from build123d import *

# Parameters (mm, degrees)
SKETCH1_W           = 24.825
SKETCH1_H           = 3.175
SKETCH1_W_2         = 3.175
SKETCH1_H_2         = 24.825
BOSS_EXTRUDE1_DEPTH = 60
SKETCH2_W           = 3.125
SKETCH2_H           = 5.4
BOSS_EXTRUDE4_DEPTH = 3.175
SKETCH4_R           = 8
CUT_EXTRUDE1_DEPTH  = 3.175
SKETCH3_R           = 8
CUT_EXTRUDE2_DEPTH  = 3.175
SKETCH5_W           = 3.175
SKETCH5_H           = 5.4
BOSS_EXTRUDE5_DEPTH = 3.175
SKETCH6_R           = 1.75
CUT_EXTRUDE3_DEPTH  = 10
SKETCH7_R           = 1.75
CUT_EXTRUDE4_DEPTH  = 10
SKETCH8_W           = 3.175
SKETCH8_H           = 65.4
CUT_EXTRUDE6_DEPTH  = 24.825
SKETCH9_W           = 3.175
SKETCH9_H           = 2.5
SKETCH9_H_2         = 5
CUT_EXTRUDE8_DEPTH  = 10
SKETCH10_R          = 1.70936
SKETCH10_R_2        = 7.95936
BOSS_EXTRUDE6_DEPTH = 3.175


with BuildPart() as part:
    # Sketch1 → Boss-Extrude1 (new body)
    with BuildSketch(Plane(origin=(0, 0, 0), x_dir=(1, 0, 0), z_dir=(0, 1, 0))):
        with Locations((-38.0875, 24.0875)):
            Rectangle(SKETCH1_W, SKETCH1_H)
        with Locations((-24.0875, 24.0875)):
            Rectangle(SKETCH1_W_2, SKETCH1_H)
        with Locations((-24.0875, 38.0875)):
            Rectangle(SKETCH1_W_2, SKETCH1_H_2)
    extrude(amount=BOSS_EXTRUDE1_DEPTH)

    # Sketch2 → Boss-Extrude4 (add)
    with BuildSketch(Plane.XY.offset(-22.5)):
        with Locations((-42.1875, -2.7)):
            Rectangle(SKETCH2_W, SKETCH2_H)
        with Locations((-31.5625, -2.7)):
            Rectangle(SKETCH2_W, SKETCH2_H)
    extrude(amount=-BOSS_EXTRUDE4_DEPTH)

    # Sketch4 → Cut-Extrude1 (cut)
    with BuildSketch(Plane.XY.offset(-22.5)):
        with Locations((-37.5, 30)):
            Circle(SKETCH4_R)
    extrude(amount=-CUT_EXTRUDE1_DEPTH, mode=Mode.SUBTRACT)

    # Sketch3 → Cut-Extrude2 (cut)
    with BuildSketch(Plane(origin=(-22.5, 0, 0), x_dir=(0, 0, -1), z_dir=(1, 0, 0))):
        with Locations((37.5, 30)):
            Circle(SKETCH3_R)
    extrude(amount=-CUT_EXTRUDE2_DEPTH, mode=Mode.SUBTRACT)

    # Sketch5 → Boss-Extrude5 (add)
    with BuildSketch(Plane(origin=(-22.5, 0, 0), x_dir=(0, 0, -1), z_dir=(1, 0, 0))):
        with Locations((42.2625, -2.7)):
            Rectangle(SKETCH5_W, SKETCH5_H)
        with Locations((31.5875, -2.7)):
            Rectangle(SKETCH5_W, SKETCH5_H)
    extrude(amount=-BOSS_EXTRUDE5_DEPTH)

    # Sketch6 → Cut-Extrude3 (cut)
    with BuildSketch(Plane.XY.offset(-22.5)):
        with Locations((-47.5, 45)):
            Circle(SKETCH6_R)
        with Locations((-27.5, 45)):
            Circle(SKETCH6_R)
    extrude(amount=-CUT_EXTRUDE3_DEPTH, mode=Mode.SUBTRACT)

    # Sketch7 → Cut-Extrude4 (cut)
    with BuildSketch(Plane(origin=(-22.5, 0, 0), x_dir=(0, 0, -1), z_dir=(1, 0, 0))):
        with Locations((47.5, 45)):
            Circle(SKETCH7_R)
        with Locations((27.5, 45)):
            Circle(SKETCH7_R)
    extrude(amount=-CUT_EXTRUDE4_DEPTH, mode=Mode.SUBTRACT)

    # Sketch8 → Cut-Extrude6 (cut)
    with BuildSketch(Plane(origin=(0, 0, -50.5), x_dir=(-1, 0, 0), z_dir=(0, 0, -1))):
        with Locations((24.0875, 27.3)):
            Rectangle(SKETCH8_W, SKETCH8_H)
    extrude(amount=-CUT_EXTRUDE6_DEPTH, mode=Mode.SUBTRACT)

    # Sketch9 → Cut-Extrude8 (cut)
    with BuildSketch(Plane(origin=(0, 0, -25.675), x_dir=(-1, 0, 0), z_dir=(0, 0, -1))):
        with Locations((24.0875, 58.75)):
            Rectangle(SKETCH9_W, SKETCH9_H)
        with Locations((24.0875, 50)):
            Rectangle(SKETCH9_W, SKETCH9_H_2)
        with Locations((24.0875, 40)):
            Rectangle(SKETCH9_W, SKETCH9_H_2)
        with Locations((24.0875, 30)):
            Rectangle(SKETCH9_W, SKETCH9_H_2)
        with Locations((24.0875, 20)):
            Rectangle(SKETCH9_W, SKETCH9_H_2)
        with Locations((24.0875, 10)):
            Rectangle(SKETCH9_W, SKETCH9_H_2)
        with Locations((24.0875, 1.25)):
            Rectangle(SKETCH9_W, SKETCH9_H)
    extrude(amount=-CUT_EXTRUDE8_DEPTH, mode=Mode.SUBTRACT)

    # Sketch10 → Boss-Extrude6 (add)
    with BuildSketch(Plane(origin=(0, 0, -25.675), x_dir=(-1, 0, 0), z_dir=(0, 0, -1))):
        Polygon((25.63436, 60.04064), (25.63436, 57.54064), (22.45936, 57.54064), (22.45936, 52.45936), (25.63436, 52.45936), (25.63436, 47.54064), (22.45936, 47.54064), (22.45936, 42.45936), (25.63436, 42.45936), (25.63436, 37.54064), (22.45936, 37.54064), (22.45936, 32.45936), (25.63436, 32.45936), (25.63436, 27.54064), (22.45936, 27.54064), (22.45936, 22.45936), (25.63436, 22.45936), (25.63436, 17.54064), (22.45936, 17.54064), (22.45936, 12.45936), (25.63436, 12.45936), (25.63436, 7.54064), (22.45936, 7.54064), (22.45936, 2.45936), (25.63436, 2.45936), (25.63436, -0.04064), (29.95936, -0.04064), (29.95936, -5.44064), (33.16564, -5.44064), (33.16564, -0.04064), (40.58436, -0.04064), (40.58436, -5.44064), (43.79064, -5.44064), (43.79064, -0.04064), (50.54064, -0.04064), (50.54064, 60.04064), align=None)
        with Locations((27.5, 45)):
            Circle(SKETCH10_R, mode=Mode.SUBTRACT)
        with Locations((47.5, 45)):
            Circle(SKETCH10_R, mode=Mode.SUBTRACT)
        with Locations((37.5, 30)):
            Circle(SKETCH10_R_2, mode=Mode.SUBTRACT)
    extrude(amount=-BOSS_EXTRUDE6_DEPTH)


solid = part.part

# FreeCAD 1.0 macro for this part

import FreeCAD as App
import Part
import Sketcher
from FreeCAD import Vector


def add_polygon(sketch, points):
    """Adds a closed chain of lines whose ends are joined by coincident constraints."""
    first, n = sketch.GeometryCount, len(points)
    for a, b in zip(points, points[1:] + points[:1]):
        sketch.addGeometry(Part.LineSegment(App.Vector(*a, 0), App.Vector(*b, 0)), False)
    for i in range(n):
        sketch.addConstraint(Sketcher.Constraint("Coincident", first + i, 2, first + (i + 1) % n, 1))

doc = App.newDocument("Part")
body = doc.addObject("PartDesign::Body", "Body")

sketch1 = doc.addObject("Sketcher::SketchObject", "Sketch")
body.addObject(sketch1)
sketch1.AttachmentSupport = (doc.XZ_Plane, [""])
sketch1.MapMode = "FlatFace"
add_polygon(sketch1, [(-50.5, -25.7), (-50.5, -22.5), (-22.5, -22.5), (-22.5, -50.5), (-25.7, -50.5), (-25.7, -25.7)])
sketch1.addConstraint([
    Sketcher.Constraint("Vertical", 0),
    Sketcher.Constraint("Horizontal", 1),
    Sketcher.Constraint("Vertical", 2),
    Sketcher.Constraint("Horizontal", 3),
    Sketcher.Constraint("Vertical", 4),
    Sketcher.Constraint("Horizontal", 5),
    Sketcher.Constraint("Equal", 3, 0),
    Sketcher.Constraint("Equal", 1, 2),
    Sketcher.Constraint("DistanceX", 1, 1, 1, 2, 28.0),
    Sketcher.Constraint("DistanceX", 0, 2, -1, 1, 50.5),
    Sketcher.Constraint("DistanceY", 0, 2, -1, 1, 22.5),
    Sketcher.Constraint("DistanceX", 3, 2, 3, 1, 3.175),
])
pad1 = doc.addObject("PartDesign::Pad", "Pad")
body.addObject(pad1)
pad1.Profile = sketch1
pad1.Length = 60
pad1.Reversed = True

sketch2 = doc.addObject("Sketcher::SketchObject", "Sketch001")
body.addObject(sketch2)
sketch2.AttachmentSupport = (doc.XY_Plane, [""])
sketch2.MapMode = "FlatFace"
sketch2.AttachmentOffset = App.Placement(Vector(0, 0, -22.5), App.Rotation())
add_polygon(sketch2, [(-43.8, 0), (-43.8, -5.4), (-40.6, -5.4), (-40.6, 0)])
add_polygon(sketch2, [(-33.1, 0), (-33.1, -5.4), (-30, -5.4), (-30, 0)])
sketch2.addConstraint([
    Sketcher.Constraint("Vertical", 0),
    Sketcher.Constraint("Horizontal", 1),
    Sketcher.Constraint("Vertical", 2),
    Sketcher.Constraint("Horizontal", 3),
    Sketcher.Constraint("Vertical", 4),
    Sketcher.Constraint("Horizontal", 5),
    Sketcher.Constraint("Vertical", 6),
    Sketcher.Constraint("Horizontal", 7),
    Sketcher.Constraint("PointOnObject", 2, 2, -1),
    Sketcher.Constraint("PointOnObject", 6, 2, -1),
    Sketcher.Constraint("Horizontal", 1, 2, 4, 2),
    Sketcher.Constraint("Equal", 3, 5),
    Sketcher.Constraint("DistanceY", 0, 2, 0, 1, 5.4),
    Sketcher.Constraint("DistanceX", 5, 2, -1, 1, 30.0),
    Sketcher.Constraint("DistanceX", 1, 2, 4, 2, 7.5),
    Sketcher.Constraint("DistanceX", 1, 1, 1, 2, 3.125),
])
pad2 = doc.addObject("PartDesign::Pad", "Pad001")
body.addObject(pad2)
pad2.Profile = sketch2
pad2.Length = 3.175
pad2.Reversed = True

sketch3 = doc.addObject("Sketcher::SketchObject", "Sketch002")
body.addObject(sketch3)
sketch3.AttachmentSupport = (doc.XY_Plane, [""])
sketch3.MapMode = "FlatFace"
sketch3.AttachmentOffset = App.Placement(Vector(0, 0, -22.5), App.Rotation())
sketch3.addGeometry(Part.Circle(Vector(-38, 30, 0), Vector(0, 0, 1), 8), False)
sketch3.addConstraint([
    Sketcher.Constraint("Diameter", 0, 16.0),
    Sketcher.Constraint("DistanceY", -1, 1, 0, 3, 30.0),
    Sketcher.Constraint("DistanceX", 0, 3, -1, 1, 37.5),
])
pocket1 = doc.addObject("PartDesign::Pocket", "Pocket")
body.addObject(pocket1)
pocket1.Profile = sketch3
pocket1.Length = 3.175

sketch4 = doc.addObject("Sketcher::SketchObject", "Sketch003")
body.addObject(sketch4)
sketch4.AttachmentSupport = (doc.YZ_Plane, [""])
sketch4.MapMode = "FlatFace"
sketch4.AttachmentOffset = App.Placement(Vector(0, 0, -22.5), App.Rotation())
sketch4.addGeometry(Part.Circle(Vector(30, -38, 0), Vector(0, 0, 1), 8), False)
sketch4.addConstraint([
    Sketcher.Constraint("Diameter", 0, 16.0),
    Sketcher.Constraint("DistanceX", -1, 1, 0, 3, 30.0),
    Sketcher.Constraint("DistanceY", 0, 3, -1, 1, 37.5),
])
pocket2 = doc.addObject("PartDesign::Pocket", "Pocket001")
body.addObject(pocket2)
pocket2.Profile = sketch4
pocket2.Length = 3.175

sketch5 = doc.addObject("Sketcher::SketchObject", "Sketch004")
body.addObject(sketch5)
sketch5.AttachmentSupport = (doc.YZ_Plane, [""])
sketch5.MapMode = "FlatFace"
sketch5.AttachmentOffset = App.Placement(Vector(0, 0, -22.5), App.Rotation())
add_polygon(sketch5, [(0, -40.7), (-5.4, -40.7), (-5.4, -43.9), (0, -43.9)])
add_polygon(sketch5, [(0, -30), (-5.4, -30), (-5.4, -33.2), (0, -33.2)])
sketch5.addConstraint([
    Sketcher.Constraint("Horizontal", 0),
    Sketcher.Constraint("Vertical", 1),
    Sketcher.Constraint("Horizontal", 2),
    Sketcher.Constraint("Vertical", 3),
    Sketcher.Constraint("Horizontal", 4),
    Sketcher.Constraint("Vertical", 5),
    Sketcher.Constraint("Horizontal", 6),
    Sketcher.Constraint("Vertical", 7),
    Sketcher.Constraint("PointOnObject", 2, 2, -2),
    Sketcher.Constraint("PointOnObject", 6, 2, -2),
    Sketcher.Constraint("Vertical", 1, 2, 4, 2),
    Sketcher.Constraint("Equal", 3, 5),
    Sketcher.Constraint("DistanceX", 0, 2, 0, 1, 5.4),
    Sketcher.Constraint("DistanceY", 4, 2, -1, 1, 30.0),
    Sketcher.Constraint("DistanceY", 0, 2, 5, 2, 7.5),
    Sketcher.Constraint("DistanceY", 1, 2, 1, 1, 3.175),
])
pad3 = doc.addObject("PartDesign::Pad", "Pad002")
body.addObject(pad3)
pad3.Profile = sketch5
pad3.Length = 3.175
pad3.Reversed = True

sketch6 = doc.addObject("Sketcher::SketchObject", "Sketch005")
body.addObject(sketch6)
sketch6.AttachmentSupport = (doc.XY_Plane, [""])
sketch6.MapMode = "FlatFace"
sketch6.AttachmentOffset = App.Placement(Vector(0, 0, -22.5), App.Rotation())
sketch6.addGeometry([
    Part.Circle(Vector(-47.5, 45, 0), Vector(0, 0, 1), 1.8),
    Part.Circle(Vector(-27.5, 45, 0), Vector(0, 0, 1), 1.8),
], False)
sketch6.addConstraint([
    Sketcher.Constraint("Equal", 0, 1),
    Sketcher.Constraint("Horizontal", 0, 3, 1, 3),
    Sketcher.Constraint("Diameter", 0, 3.5),
    Sketcher.Constraint("DistanceY", -1, 1, 0, 3, 45.0),
    Sketcher.Constraint("DistanceX", 0, 3, 1, 3, 20.0),
    Sketcher.Constraint("DistanceX", 0, 3, -1, 1, 47.5),
])
pocket3 = doc.addObject("PartDesign::Pocket", "Pocket002")
body.addObject(pocket3)
pocket3.Profile = sketch6
pocket3.Length = 10

sketch7 = doc.addObject("Sketcher::SketchObject", "Sketch006")
body.addObject(sketch7)
sketch7.AttachmentSupport = (doc.YZ_Plane, [""])
sketch7.MapMode = "FlatFace"
sketch7.AttachmentOffset = App.Placement(Vector(0, 0, -22.5), App.Rotation())
sketch7.addGeometry([
    Part.Circle(Vector(45, -47.5, 0), Vector(0, 0, 1), 1.8),
    Part.Circle(Vector(45, -27.5, 0), Vector(0, 0, 1), 1.8),
], False)
sketch7.addConstraint([
    Sketcher.Constraint("Equal", 0, 1),
    Sketcher.Constraint("Vertical", 0, 3, 1, 3),
    Sketcher.Constraint("Diameter", 0, 3.5),
    Sketcher.Constraint("DistanceX", -1, 1, 0, 3, 45.0),
    Sketcher.Constraint("DistanceY", 0, 3, 1, 3, 20.0),
    Sketcher.Constraint("DistanceY", 0, 3, -1, 1, 47.5),
])
pocket4 = doc.addObject("PartDesign::Pocket", "Pocket003")
body.addObject(pocket4)
pocket4.Profile = sketch7
pocket4.Length = 10

sketch8 = doc.addObject("Sketcher::SketchObject", "Sketch007")
body.addObject(sketch8)
sketch8.AttachmentSupport = (doc.XY_Plane, [""])
sketch8.MapMode = "FlatFace"
sketch8.AttachmentOffset = App.Placement(Vector(0, 0, -50.5), App.Rotation())
add_polygon(sketch8, [(-22.5, 60), (-22.5, -5.4), (-25.7, -5.4), (-25.7, 60)])
sketch8.addConstraint([
    Sketcher.Constraint("Vertical", 0),
    Sketcher.Constraint("Horizontal", 1),
    Sketcher.Constraint("Vertical", 2),
    Sketcher.Constraint("Horizontal", 3),
    Sketcher.Constraint("DistanceY", 0, 2, 0, 1, 65.4),
    Sketcher.Constraint("DistanceY", -1, 1, 2, 2, 60.0),
    Sketcher.Constraint("DistanceX", 0, 2, -1, 1, 22.5),
    Sketcher.Constraint("DistanceX", 1, 2, 1, 1, 3.175),
])
pocket5 = doc.addObject("PartDesign::Pocket", "Pocket004")
body.addObject(pocket5)
pocket5.Profile = sketch8
pocket5.Length = 24.825
pocket5.Reversed = True

sketch9 = doc.addObject("Sketcher::SketchObject", "Sketch008")
body.addObject(sketch9)
sketch9.AttachmentSupport = (doc.XY_Plane, [""])
sketch9.MapMode = "FlatFace"
sketch9.AttachmentOffset = App.Placement(Vector(0, 0, -25.675), App.Rotation())
add_polygon(sketch9, [(-22.5, 60), (-22.5, 57.5), (-25.7, 57.5), (-25.7, 60)])
add_polygon(sketch9, [(-22.5, 52.5), (-22.5, 47.5), (-25.7, 47.5), (-25.7, 52.5)])
add_polygon(sketch9, [(-22.5, 42.5), (-22.5, 37.5), (-25.7, 37.5), (-25.7, 42.5)])
add_polygon(sketch9, [(-22.5, 32.5), (-22.5, 27.5), (-25.7, 27.5), (-25.7, 32.5)])
add_polygon(sketch9, [(-22.5, 22.5), (-22.5, 17.5), (-25.7, 17.5), (-25.7, 22.5)])
add_polygon(sketch9, [(-22.5, 12.5), (-22.5, 7.5), (-25.7, 7.5), (-25.7, 12.5)])
add_polygon(sketch9, [(-22.5, 2.5), (-22.5, 0), (-25.7, 0), (-25.7, 2.5)])
sketch9.addConstraint([
    Sketcher.Constraint("Vertical", 0),
    Sketcher.Constraint("Horizontal", 1),
    Sketcher.Constraint("Vertical", 2),
    Sketcher.Constraint("Horizontal", 3),
    Sketcher.Constraint("Vertical", 4),
    Sketcher.Constraint("Horizontal", 5),
    Sketcher.Constraint("Vertical", 6),
    Sketcher.Constraint("Horizontal", 7),
    Sketcher.Constraint("Vertical", 8),
    Sketcher.Constraint("Horizontal", 9),
    Sketcher.Constraint("Vertical", 10),
    Sketcher.Constraint("Horizontal", 11),
    Sketcher.Constraint("Vertical", 12),
    Sketcher.Constraint("Horizontal", 13),
    Sketcher.Constraint("Vertical", 14),
    Sketcher.Constraint("Horizontal", 15),
    Sketcher.Constraint("Vertical", 16),
    Sketcher.Constraint("Horizontal", 17),
    Sketcher.Constraint("Vertical", 18),
    Sketcher.Constraint("Horizontal", 19),
    Sketcher.Constraint("Vertical", 20),
    Sketcher.Constraint("Horizontal", 21),
    Sketcher.Constraint("Vertical", 22),
    Sketcher.Constraint("Horizontal", 23),
    Sketcher.Constraint("Vertical", 24),
    Sketcher.Constraint("Horizontal", 25),
    Sketcher.Constraint("Vertical", 26),
    Sketcher.Constraint("Horizontal", 27),
    Sketcher.Constraint("PointOnObject", 24, 2, -1),
    Sketcher.Constraint("Vertical", 3, 2, 4, 2),
    Sketcher.Constraint("Vertical", 2, 2, 5, 2),
    Sketcher.Constraint("Vertical", 7, 2, 8, 2),
    Sketcher.Constraint("Vertical", 6, 2, 9, 2),
    Sketcher.Constraint("Vertical", 11, 2, 12, 2),
    Sketcher.Constraint("Vertical", 10, 2, 13, 2),
    Sketcher.Constraint("Vertical", 15, 2, 16, 2),
    Sketcher.Constraint("Vertical", 14, 2, 17, 2),
    Sketcher.Constraint("Vertical", 19, 2, 20, 2),
    Sketcher.Constraint("Vertical", 18, 2, 21, 2),
    Sketcher.Constraint("Vertical", 23, 2, 24, 2),
    Sketcher.Constraint("Vertical", 22, 2, 25, 2),
    Sketcher.Constraint("Equal", 6, 8),
    Sketcher.Constraint("Equal", 10, 12),
    Sketcher.Constraint("Equal", 14, 16),
    Sketcher.Constraint("Equal", 18, 20),
    Sketcher.Constraint("Equal", 2, 24),
    Sketcher.Constraint("DistanceY", 4, 2, 4, 1, 5.0),
    Sketcher.Constraint("DistanceY", 0, 2, 0, 1, 2.5),
    Sketcher.Constraint("DistanceY", -1, 1, 2, 2, 60.0),
    Sketcher.Constraint("DistanceY", 4, 2, 0, 2, 10.0),
    Sketcher.Constraint("DistanceY", 8, 2, 4, 2, 10.0),
    Sketcher.Constraint("DistanceY", 12, 2, 8, 2, 10.0),
    Sketcher.Constraint("DistanceY", 16, 2, 12, 2, 10.0),
    Sketcher.Constraint("DistanceY", 20, 2, 16, 2, 10.0),
    Sketcher.Constraint("DistanceX", 0, 2, -1, 1, 22.5),
    Sketcher.Constraint("DistanceX", 1, 2, 1, 1, 3.175),
])
pocket6 = doc.addObject("PartDesign::Pocket", "Pocket005")
body.addObject(pocket6)
pocket6.Profile = sketch9
pocket6.Length = 10
pocket6.Reversed = True

sketch10 = doc.addObject("Sketcher::SketchObject", "Sketch009")
body.addObject(sketch10)
sketch10.AttachmentSupport = (doc.XY_Plane, [""])
sketch10.MapMode = "FlatFace"
sketch10.AttachmentOffset = App.Placement(Vector(0, 0, -25.675), App.Rotation())
add_polygon(sketch10, [(-25.6, 60), (-25.6, 57.5), (-22.5, 57.5), (-22.5, 52.5), (-25.6, 52.5), (-25.6, 47.5), (-22.5, 47.5), (-22.5, 42.5), (-25.6, 42.5), (-25.6, 37.5), (-22.5, 37.5), (-22.5, 32.5), (-25.6, 32.5), (-25.6, 27.5), (-22.5, 27.5), (-22.5, 22.5), (-25.6, 22.5), (-25.6, 17.5), (-22.5, 17.5), (-22.5, 12.5), (-25.6, 12.5), (-25.6, 7.5), (-22.5, 7.5), (-22.5, 2.5), (-25.6, 2.5), (-25.6, 0), (-30, 0), (-30, -5.4), (-33.2, -5.4), (-33.2, 0), (-40.6, 0), (-40.6, -5.4), (-43.8, -5.4), (-43.8, 0), (-50.5, 0), (-50.5, 60)])
sketch10.addGeometry(Part.Circle(Vector(-37.5, 30, 0), Vector(0, 0, 1), 8), False)
sketch10.addGeometry(Part.Circle(Vector(-27.5, 45, 0), Vector(0, 0, 1), 1.7), False)
sketch10.addGeometry(Part.Circle(Vector(-47.5, 45, 0), Vector(0, 0, 1), 1.7), False)
sketch10.addConstraint([
    Sketcher.Constraint("Vertical", 0),
    Sketcher.Constraint("Horizontal", 1),
    Sketcher.Constraint("Vertical", 2),
    Sketcher.Constraint("Horizontal", 3),
    Sketcher.Constraint("Vertical", 4),
    Sketcher.Constraint("Horizontal", 5),
    Sketcher.Constraint("Vertical", 6),
    Sketcher.Constraint("Horizontal", 7),
    Sketcher.Constraint("Vertical", 8),
    Sketcher.Constraint("Horizontal", 9),
    Sketcher.Constraint("Vertical", 10),
    Sketcher.Constraint("Horizontal", 11),
    Sketcher.Constraint("Vertical", 12),
    Sketcher.Constraint("Horizontal", 13),
    Sketcher.Constraint("Vertical", 14),
    Sketcher.Constraint("Horizontal", 15),
    Sketcher.Constraint("Vertical", 16),
    Sketcher.Constraint("Horizontal", 17),
    Sketcher.Constraint("Vertical", 18),
    Sketcher.Constraint("Horizontal", 19),
    Sketcher.Constraint("Vertical", 20),
    Sketcher.Constraint("Horizontal", 21),
    Sketcher.Constraint("Vertical", 22),
    Sketcher.Constraint("Horizontal", 23),
    Sketcher.Constraint("Vertical", 24),
    Sketcher.Constraint("Horizontal", 25),
    Sketcher.Constraint("Vertical", 26),
    Sketcher.Constraint("Horizontal", 27),
    Sketcher.Constraint("Vertical", 28),
    Sketcher.Constraint("Horizontal", 29),
    Sketcher.Constraint("Vertical", 30),
    Sketcher.Constraint("Horizontal", 31),
    Sketcher.Constraint("Vertical", 32),
    Sketcher.Constraint("Horizontal", 33),
    Sketcher.Constraint("Vertical", 34),
    Sketcher.Constraint("Horizontal", 35),
    Sketcher.Constraint("Equal", 37, 38),
    Sketcher.Constraint("Horizontal", 37, 3, 38, 3),
    Sketcher.Constraint("Horizontal", 25, 2, 28, 2),
    Sketcher.Constraint("Horizontal", 27, 2, 30, 2),
    Sketcher.Constraint("Horizontal", 29, 2, 32, 2),
    Sketcher.Constraint("Vertical", 0, 2, 3, 2),
    Sketcher.Constraint("Vertical", 2, 2, 5, 2),
    Sketcher.Constraint("Vertical", 4, 2, 7, 2),
    Sketcher.Constraint("Vertical", 6, 2, 9, 2),
    Sketcher.Constraint("Vertical", 8, 2, 11, 2),
    Sketcher.Constraint("Vertical", 10, 2, 13, 2),
    Sketcher.Constraint("Vertical", 12, 2, 15, 2),
    Sketcher.Constraint("Vertical", 14, 2, 17, 2),
    Sketcher.Constraint("Vertical", 16, 2, 19, 2),
    Sketcher.Constraint("Vertical", 18, 2, 21, 2),
    Sketcher.Constraint("Vertical", 20, 2, 23, 2),
    Sketcher.Constraint("Equal", 27, 31),
    Sketcher.Constraint("Equal", 2, 6),
    Sketcher.Constraint("Equal", 4, 8),
    Sketcher.Constraint("Equal", 6, 10),
    Sketcher.Constraint("Equal", 8, 12),
    Sketcher.Constraint("Equal", 10, 14),
    Sketcher.Constraint("Equal", 12, 16),
    Sketcher.Constraint("Equal", 14, 18),
    Sketcher.Constraint("Equal", 16, 20),
    Sketcher.Constraint("Equal", 18, 22),
    Sketcher.Constraint("Equal", 0, 24),
    Sketcher.Constraint("DistanceY", 0, 2, 0, 1, 2.5),
    Sketcher.Constraint("DistanceY", 26, 2, 26, 1, 5.4),
    Sketcher.Constraint("DistanceY", -1, 1, 36, 3, 30.0),
    Sketcher.Constraint("DistanceY", -1, 1, 37, 3, 45.0),
    Sketcher.Constraint("DistanceX", 36, 3, 37, 3, 10.0),
    Sketcher.Constraint("DistanceX", 38, 3, 36, 3, 10.0),
    Sketcher.Constraint("DistanceY", 4, 2, 0, 2, 10.0),
    Sketcher.Constraint("DistanceX", 33, 2, 33, 1, 6.75),
    Sketcher.Constraint("DistanceX", 36, 3, -1, 1, 37.5),
    Sketcher.Constraint("DistanceX", 25, 2, 22, 2, 7.5),
    Sketcher.Constraint("Diameter", 36, 15.91872),
    Sketcher.Constraint("Diameter", 37, 3.41872),
    Sketcher.Constraint("DistanceX", 1, 1, 1, 2, 3.175),
    Sketcher.Constraint("DistanceX", 29, 2, 24, 2, 14.95),
    Sketcher.Constraint("DistanceX", 27, 2, 27, 1, 3.20628),
    Sketcher.Constraint("DistanceY", 2, 2, 2, 1, 5.08128),
    Sketcher.Constraint("DistanceX", 0, 2, -1, 1, 25.63436),
    Sketcher.Constraint("DistanceY", -1, 1, 0, 2, 57.54064),
])
pad4 = doc.addObject("PartDesign::Pad", "Pad003")
body.addObject(pad4)
pad4.Profile = sketch10
pad4.Length = 3.175

doc.recompute()
